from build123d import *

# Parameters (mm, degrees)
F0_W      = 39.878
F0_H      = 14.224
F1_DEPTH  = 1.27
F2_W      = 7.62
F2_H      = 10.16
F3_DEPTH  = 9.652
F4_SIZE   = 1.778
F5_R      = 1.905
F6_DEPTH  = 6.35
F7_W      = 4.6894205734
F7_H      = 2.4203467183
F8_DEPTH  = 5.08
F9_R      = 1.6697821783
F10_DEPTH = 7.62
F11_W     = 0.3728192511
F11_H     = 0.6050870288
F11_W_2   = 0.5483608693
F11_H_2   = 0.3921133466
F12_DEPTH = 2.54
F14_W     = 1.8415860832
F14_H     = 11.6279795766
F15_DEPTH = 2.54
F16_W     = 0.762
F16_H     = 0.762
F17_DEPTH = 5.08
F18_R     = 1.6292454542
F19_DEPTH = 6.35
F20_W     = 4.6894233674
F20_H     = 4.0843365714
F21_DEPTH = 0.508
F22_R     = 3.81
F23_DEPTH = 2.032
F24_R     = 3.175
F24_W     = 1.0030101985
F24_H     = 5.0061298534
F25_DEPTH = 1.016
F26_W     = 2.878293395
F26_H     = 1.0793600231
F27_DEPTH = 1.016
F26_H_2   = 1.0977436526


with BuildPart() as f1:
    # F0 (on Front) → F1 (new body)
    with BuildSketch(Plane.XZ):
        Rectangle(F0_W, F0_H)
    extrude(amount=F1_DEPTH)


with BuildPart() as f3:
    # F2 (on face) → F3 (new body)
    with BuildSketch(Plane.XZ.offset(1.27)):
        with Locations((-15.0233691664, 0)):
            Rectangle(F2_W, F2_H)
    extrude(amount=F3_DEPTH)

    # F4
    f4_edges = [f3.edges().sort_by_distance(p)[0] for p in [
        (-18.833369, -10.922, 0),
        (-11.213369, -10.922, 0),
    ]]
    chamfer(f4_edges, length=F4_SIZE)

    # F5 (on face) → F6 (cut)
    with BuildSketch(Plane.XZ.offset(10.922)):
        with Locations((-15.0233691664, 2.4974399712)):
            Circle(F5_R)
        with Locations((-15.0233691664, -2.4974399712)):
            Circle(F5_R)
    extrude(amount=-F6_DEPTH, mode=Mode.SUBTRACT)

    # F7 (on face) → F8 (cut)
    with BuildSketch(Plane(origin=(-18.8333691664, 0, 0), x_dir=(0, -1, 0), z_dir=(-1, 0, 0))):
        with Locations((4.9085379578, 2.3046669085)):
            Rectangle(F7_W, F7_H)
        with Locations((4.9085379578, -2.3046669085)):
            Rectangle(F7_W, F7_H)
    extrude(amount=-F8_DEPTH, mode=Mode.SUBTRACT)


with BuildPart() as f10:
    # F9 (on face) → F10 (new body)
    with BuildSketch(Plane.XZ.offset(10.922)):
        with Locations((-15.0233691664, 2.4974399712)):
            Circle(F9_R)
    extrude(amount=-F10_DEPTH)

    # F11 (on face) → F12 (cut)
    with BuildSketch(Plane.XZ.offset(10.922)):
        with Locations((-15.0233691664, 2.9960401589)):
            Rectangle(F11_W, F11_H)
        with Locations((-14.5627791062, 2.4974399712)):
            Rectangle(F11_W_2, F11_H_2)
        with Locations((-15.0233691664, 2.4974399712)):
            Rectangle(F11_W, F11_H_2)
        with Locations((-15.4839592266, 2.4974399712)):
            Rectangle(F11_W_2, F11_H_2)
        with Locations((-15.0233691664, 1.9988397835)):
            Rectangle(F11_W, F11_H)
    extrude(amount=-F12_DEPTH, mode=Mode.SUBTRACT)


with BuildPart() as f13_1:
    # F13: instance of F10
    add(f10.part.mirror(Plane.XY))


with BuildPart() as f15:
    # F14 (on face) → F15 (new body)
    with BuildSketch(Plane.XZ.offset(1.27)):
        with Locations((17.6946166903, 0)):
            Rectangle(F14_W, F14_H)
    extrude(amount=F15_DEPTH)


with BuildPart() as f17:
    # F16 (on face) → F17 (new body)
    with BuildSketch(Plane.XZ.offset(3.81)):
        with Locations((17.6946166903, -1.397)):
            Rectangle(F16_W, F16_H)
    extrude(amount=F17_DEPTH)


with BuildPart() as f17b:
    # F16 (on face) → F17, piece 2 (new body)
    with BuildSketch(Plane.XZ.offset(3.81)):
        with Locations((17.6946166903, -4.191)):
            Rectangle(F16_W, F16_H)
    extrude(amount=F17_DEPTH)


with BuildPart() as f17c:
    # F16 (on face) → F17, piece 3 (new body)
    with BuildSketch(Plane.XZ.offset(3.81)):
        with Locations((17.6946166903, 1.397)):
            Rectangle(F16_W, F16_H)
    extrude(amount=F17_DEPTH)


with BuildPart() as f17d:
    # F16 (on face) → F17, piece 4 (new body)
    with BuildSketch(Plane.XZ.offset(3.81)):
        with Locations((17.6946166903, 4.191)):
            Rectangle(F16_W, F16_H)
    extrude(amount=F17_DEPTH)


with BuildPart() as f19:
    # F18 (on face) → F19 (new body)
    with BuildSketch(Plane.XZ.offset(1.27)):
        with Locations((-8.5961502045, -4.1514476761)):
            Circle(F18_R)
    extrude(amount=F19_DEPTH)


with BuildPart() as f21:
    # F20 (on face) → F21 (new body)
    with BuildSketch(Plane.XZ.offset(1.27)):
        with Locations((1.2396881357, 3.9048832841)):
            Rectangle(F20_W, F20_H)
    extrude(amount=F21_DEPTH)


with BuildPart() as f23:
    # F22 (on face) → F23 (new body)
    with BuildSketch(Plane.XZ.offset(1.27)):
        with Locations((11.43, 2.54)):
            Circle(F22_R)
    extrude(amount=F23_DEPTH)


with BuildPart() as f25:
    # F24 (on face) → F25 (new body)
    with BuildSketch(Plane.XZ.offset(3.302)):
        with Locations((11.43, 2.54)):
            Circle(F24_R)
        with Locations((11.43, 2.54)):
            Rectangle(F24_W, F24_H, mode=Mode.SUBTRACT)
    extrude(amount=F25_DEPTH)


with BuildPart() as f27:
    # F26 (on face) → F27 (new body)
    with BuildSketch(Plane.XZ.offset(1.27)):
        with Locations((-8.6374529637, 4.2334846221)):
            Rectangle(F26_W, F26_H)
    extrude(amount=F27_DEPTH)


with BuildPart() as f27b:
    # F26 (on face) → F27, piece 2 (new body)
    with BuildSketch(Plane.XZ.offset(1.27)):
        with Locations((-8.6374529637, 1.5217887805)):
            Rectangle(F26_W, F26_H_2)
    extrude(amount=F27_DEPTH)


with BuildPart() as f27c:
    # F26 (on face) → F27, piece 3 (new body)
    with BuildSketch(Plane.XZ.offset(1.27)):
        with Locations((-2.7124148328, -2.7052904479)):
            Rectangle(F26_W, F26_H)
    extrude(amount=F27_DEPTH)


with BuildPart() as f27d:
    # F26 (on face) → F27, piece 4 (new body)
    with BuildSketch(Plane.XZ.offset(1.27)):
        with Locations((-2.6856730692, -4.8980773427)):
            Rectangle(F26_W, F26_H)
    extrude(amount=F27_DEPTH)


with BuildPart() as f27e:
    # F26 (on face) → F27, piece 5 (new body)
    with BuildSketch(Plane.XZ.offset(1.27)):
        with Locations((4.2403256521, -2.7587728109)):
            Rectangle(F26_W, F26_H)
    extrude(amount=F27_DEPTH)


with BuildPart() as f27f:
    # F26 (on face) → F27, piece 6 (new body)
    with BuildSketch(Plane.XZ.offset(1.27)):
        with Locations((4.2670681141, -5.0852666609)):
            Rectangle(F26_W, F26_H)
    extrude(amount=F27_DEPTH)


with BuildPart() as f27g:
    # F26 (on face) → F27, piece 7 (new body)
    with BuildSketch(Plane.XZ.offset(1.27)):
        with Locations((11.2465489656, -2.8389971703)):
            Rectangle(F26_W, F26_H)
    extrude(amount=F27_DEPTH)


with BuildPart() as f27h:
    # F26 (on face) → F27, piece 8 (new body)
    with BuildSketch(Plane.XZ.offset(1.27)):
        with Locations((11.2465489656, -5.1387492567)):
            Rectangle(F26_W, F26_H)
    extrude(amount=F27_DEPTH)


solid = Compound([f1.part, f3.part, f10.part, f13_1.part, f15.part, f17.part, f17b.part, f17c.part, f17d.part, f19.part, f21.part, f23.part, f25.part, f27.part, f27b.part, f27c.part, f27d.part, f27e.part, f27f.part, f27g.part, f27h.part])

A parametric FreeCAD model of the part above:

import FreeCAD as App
import Part
import Sketcher
Q = App.Units.Quantity


def edges_at(feature, points):
    """Names of the edges that pass closest to the given points."""
    edges = feature.Shape.Edges
    near = lambda p: min(range(len(edges)), key=lambda i: edges[i].distToShape(Part.Vertex(*p))[0])
    return sorted({f"Edge{near(p) + 1}" for p in points})

doc = App.newDocument("Part")
body = doc.addObject("PartDesign::Body", "Body")

# Sketch on XZ plane
sketch1 = body.newObject("Sketcher::SketchObject", "Sketch")
sketch1.AttachmentSupport = (doc.getObject("XZ_Plane"), [""])
sketch1.MapMode = "FlatFace"
sketch1.addGeometry(Part.LineSegment(App.Vector(-20, 7, 0), App.Vector(-20, -7, 0)), False)
sketch1.addGeometry(Part.LineSegment(App.Vector(-20, -7, 0), App.Vector(20, -7, 0)), False)
sketch1.addGeometry(Part.LineSegment(App.Vector(20, -7, 0), App.Vector(20, 7, 0)), False)
sketch1.addGeometry(Part.LineSegment(App.Vector(20, 7, 0), App.Vector(-20, 7, 0)), False)
sketch1.addConstraint(Sketcher.Constraint("Coincident", 0, 2, 1, 1))
sketch1.addConstraint(Sketcher.Constraint("Coincident", 1, 2, 2, 1))
sketch1.addConstraint(Sketcher.Constraint("Coincident", 2, 2, 3, 1))
sketch1.addConstraint(Sketcher.Constraint("Coincident", 3, 2, 0, 1))
sketch1.addConstraint(Sketcher.Constraint("Vertical", 0))
sketch1.addConstraint(Sketcher.Constraint("Horizontal", 1))
sketch1.addConstraint(Sketcher.Constraint("Vertical", 2))
sketch1.addConstraint(Sketcher.Constraint("Horizontal", 3))
sketch1.addConstraint(Sketcher.Constraint("Symmetric", 0, 2, 2, 2, -1, 1))
sketch1.addConstraint(Sketcher.Constraint("DistanceX", 1, 1, 1, 2, Q("1.57 in")))
sketch1.addConstraint(Sketcher.Constraint("DistanceY", 0, 2, 0, 1, Q("0.56 in")))
pad1 = body.newObject("PartDesign::Pad", "Pad")
pad1.Profile = sketch1
pad1.Length = Q("0.05 in")
body2 = doc.addObject("PartDesign::Body", "Body001")

# Sketch on XZ plane
sketch2 = body2.newObject("Sketcher::SketchObject", "Sketch001")
sketch2.AttachmentSupport = (doc.getObject("XZ_Plane001"), [""])
sketch2.MapMode = "FlatFace"
sketch2.AttachmentOffset = App.Placement(App.Vector(0, 0, 0.05 * 25.4), App.Rotation())
sketch2.addGeometry(Part.LineSegment(App.Vector(-19, 5, 0), App.Vector(-19, -5, 0)), False)
sketch2.addGeometry(Part.LineSegment(App.Vector(-19, -5, 0), App.Vector(-11, -5, 0)), False)
sketch2.addGeometry(Part.LineSegment(App.Vector(-11, -5, 0), App.Vector(-11, 5, 0)), False)
sketch2.addGeometry(Part.LineSegment(App.Vector(-11, 5, 0), App.Vector(-19, 5, 0)), False)
sketch2.addConstraint(Sketcher.Constraint("Coincident", 0, 2, 1, 1))
sketch2.addConstraint(Sketcher.Constraint("Coincident", 1, 2, 2, 1))
sketch2.addConstraint(Sketcher.Constraint("Coincident", 2, 2, 3, 1))
sketch2.addConstraint(Sketcher.Constraint("Coincident", 3, 2, 0, 1))
sketch2.addConstraint(Sketcher.Constraint("Vertical", 0))
sketch2.addConstraint(Sketcher.Constraint("Horizontal", 1))
sketch2.addConstraint(Sketcher.Constraint("Vertical", 2))
sketch2.addConstraint(Sketcher.Constraint("Horizontal", 3))
sketch2.addConstraint(Sketcher.Constraint("DistanceX", 1, 1, 1, 2, Q("0.3 in")))
sketch2.addConstraint(Sketcher.Constraint("DistanceY", 0, 2, 0, 1, Q("0.4 in")))
sketch2.addConstraint(Sketcher.Constraint("DistanceY", 0, 2, -1, 1, Q("0.2 in")))
sketch2.addConstraint(Sketcher.Constraint("DistanceX", 0, 2, -1, 1, 18.833369))
pad2 = body2.newObject("PartDesign::Pad", "Pad001")
pad2.Profile = sketch2
pad2.Length = Q("0.38 in")
doc.recompute()

chamfer = body2.newObject("PartDesign::Chamfer", "Chamfer")
chamfer.Base = (pad2, edges_at(pad2, [(-18.833, -10.922, 0), (-11.213, -10.922, 0)]))
chamfer.Size = Q("0.07 in")

# Sketch on XZ plane
sketch3 = body2.newObject("Sketcher::SketchObject", "Sketch002")
sketch3.AttachmentSupport = (doc.getObject("XZ_Plane001"), [""])
sketch3.MapMode = "FlatFace"
sketch3.AttachmentOffset = App.Placement(App.Vector(0, 0, 0.43 * 25.4), App.Rotation())
sketch3.addGeometry(Part.Circle(App.Vector(-15, 2.5, 0), App.Vector(0, 0, 1), 1.9), False)
sketch3.addGeometry(Part.Circle(App.Vector(-15, -2.5, 0), App.Vector(0, 0, 1), 1.9), False)
sketch3.addConstraint(Sketcher.Constraint("Equal", 0, 1))
sketch3.addConstraint(Sketcher.Constraint("Symmetric", 0, 3, 1, 3, -1))
sketch3.addConstraint(Sketcher.Constraint("Diameter", 0, Q("0.15 in")))
sketch3.addConstraint(Sketcher.Constraint("DistanceX", 0, 3, -1, 1, 15.023369))
sketch3.addConstraint(Sketcher.Constraint("DistanceY", -1, 1, 0, 3, 2.49744))
pocket1 = body2.newObject("PartDesign::Pocket", "Pocket")
pocket1.Profile = sketch3
pocket1.Length = Q("0.25 in")

# Sketch on YZ plane
sketch4 = body2.newObject("Sketcher::SketchObject", "Sketch003")
sketch4.AttachmentSupport = (doc.getObject("YZ_Plane001"), [""])
sketch4.MapMode = "FlatFace"
sketch4.AttachmentOffset = App.Placement(App.Vector(0, 0, -18.833369), App.Rotation())
sketch4.addGeometry(Part.LineSegment(App.Vector(-2.6, 3.5, 0), App.Vector(-2.6, 1.1, 0)), False)
sketch4.addGeometry(Part.LineSegment(App.Vector(-2.6, 1.1, 0), App.Vector(-7.3, 1.1, 0)), False)
sketch4.addGeometry(Part.LineSegment(App.Vector(-7.3, 1.1, 0), App.Vector(-7.3, 3.5, 0)), False)
sketch4.addGeometry(Part.LineSegment(App.Vector(-7.3, 3.5, 0), App.Vector(-2.6, 3.5, 0)), False)
sketch4.addGeometry(Part.LineSegment(App.Vector(-2.6, -1.1, 0), App.Vector(-2.6, -3.5, 0)), False)
sketch4.addGeometry(Part.LineSegment(App.Vector(-2.6, -3.5, 0), App.Vector(-7.3, -3.5, 0)), False)
sketch4.addGeometry(Part.LineSegment(App.Vector(-7.3, -3.5, 0), App.Vector(-7.3, -1.1, 0)), False)
sketch4.addGeometry(Part.LineSegment(App.Vector(-7.3, -1.1, 0), App.Vector(-2.6, -1.1, 0)), False)
sketch4.addConstraint(Sketcher.Constraint("Coincident", 0, 2, 1, 1))
sketch4.addConstraint(Sketcher.Constraint("Coincident", 1, 2, 2, 1))
sketch4.addConstraint(Sketcher.Constraint("Coincident", 2, 2, 3, 1))
sketch4.addConstraint(Sketcher.Constraint("Coincident", 3, 2, 0, 1))
sketch4.addConstraint(Sketcher.Constraint("Coincident", 4, 2, 5, 1))
sketch4.addConstraint(Sketcher.Constraint("Coincident", 5, 2, 6, 1))
sketch4.addConstraint(Sketcher.Constraint("Coincident", 6, 2, 7, 1))
sketch4.addConstraint(Sketcher.Constraint("Coincident", 7, 2, 4, 1))
sketch4.addConstraint(Sketcher.Constraint("Vertical", 0))
sketch4.addConstraint(Sketcher.Constraint("Horizontal", 1))
sketch4.addConstraint(Sketcher.Constraint("Vertical", 2))
sketch4.addConstraint(Sketcher.Constraint("Horizontal", 3))
sketch4.addConstraint(Sketcher.Constraint("Vertical", 4))
sketch4.addConstraint(Sketcher.Constraint("Horizontal", 5))
sketch4.addConstraint(Sketcher.Constraint("Vertical", 6))
sketch4.addConstraint(Sketcher.Constraint("Horizontal", 7))
sketch4.addConstraint(Sketcher.Constraint("Symmetric", 3, 2, 4, 2, -1))
sketch4.addConstraint(Sketcher.Constraint("Symmetric", 1, 2, 6, 2, -1))
sketch4.addConstraint(Sketcher.Constraint("DistanceX", 1, 2, 1, 1, 4.689421))
sketch4.addConstraint(Sketcher.Constraint("DistanceY", 0, 2, 0, 1, 2.420347))
sketch4.addConstraint(Sketcher.Constraint("DistanceX", 1, 2, -1, 1, 7.253248))
sketch4.addConstraint(Sketcher.Constraint("DistanceY", -1, 1, 2, 2, 3.51484))
pocket2 = body2.newObject("PartDesign::Pocket", "Pocket001")
pocket2.Profile = sketch4
pocket2.Length = Q("0.2 in")
pocket2.Reversed = True
body3 = doc.addObject("PartDesign::Body", "Body002")

# Sketch on XZ plane
sketch5 = body3.newObject("Sketcher::SketchObject", "Sketch004")
sketch5.AttachmentSupport = (doc.getObject("XZ_Plane002"), [""])
sketch5.MapMode = "FlatFace"
sketch5.AttachmentOffset = App.Placement(App.Vector(0, 0, 0.43 * 25.4), App.Rotation())
sketch5.addGeometry(Part.Circle(App.Vector(-15, 2.5, 0), App.Vector(0, 0, 1), 1.7), False)
sketch5.addConstraint(Sketcher.Constraint("Diameter", 0, 3.339564))
sketch5.addConstraint(Sketcher.Constraint("DistanceX", 0, 3, -1, 1, 15.023369))
sketch5.addConstraint(Sketcher.Constraint("DistanceY", -1, 1, 0, 3, 2.49744))
pad3 = body3.newObject("PartDesign::Pad", "Pad002")
pad3.Profile = sketch5
pad3.Length = Q("0.3 in")
pad3.Reversed = True

# Sketch on XZ plane
sketch6 = body3.newObject("Sketcher::SketchObject", "Sketch005")
sketch6.AttachmentSupport = (doc.getObject("XZ_Plane002"), [""])
sketch6.MapMode = "FlatFace"
sketch6.AttachmentOffset = App.Placement(App.Vector(0, 0, 0.43 * 25.4), App.Rotation())
sketch6.addGeometry(Part.LineSegment(App.Vector(-15.21, 3.3, 0), App.Vector(-15.21, 2.69, 0)), False)
sketch6.addGeometry(Part.LineSegment(App.Vector(-15.21, 2.69, 0), App.Vector(-15.76, 2.69, 0)), False)
sketch6.addGeometry(Part.LineSegment(App.Vector(-15.76, 2.69, 0), App.Vector(-15.76, 2.3, 0)), False)
sketch6.addGeometry(Part.LineSegment(App.Vector(-15.76, 2.3, 0), App.Vector(-15.21, 2.3, 0)), False)
sketch6.addGeometry(Part.LineSegment(App.Vector(-15.21, 2.3, 0), App.Vector(-15.21, 1.7, 0)), False)
sketch6.addGeometry(Part.LineSegment(App.Vector(-15.21, 1.7, 0), App.Vector(-14.84, 1.7, 0)), False)
sketch6.addGeometry(Part.LineSegment(App.Vector(-14.84, 1.7, 0), App.Vector(-14.84, 2.3, 0)), False)
sketch6.addGeometry(Part.LineSegment(App.Vector(-14.84, 2.3, 0), App.Vector(-14.29, 2.3, 0)), False)
sketch6.addGeometry(Part.LineSegment(App.Vector(-14.29, 2.3, 0), App.Vector(-14.29, 2.69, 0)), False)
sketch6.addGeometry(Part.LineSegment(App.Vector(-14.29, 2.69, 0), App.Vector(-14.84, 2.69, 0)), False)
sketch6.addGeometry(Part.LineSegment(App.Vector(-14.84, 2.69, 0), App.Vector(-14.84, 3.3, 0)), False)
sketch6.addGeometry(Part.LineSegment(App.Vector(-14.84, 3.3, 0), App.Vector(-15.21, 3.3, 0)), False)
sketch6.addConstraint(Sketcher.Constraint("Coincident", 0, 2, 1, 1))
sketch6.addConstraint(Sketcher.Constraint("Coincident", 1, 2, 2, 1))
sketch6.addConstraint(Sketcher.Constraint("Coincident", 2, 2, 3, 1))
sketch6.addConstraint(Sketcher.Constraint("Coincident", 3, 2, 4, 1))
sketch6.addConstraint(Sketcher.Constraint("Coincident", 4, 2, 5, 1))
sketch6.addConstraint(Sketcher.Constraint("Coincident", 5, 2, 6, 1))
sketch6.addConstraint(Sketcher.Constraint("Coincident", 6, 2, 7, 1))
sketch6.addConstraint(Sketcher.Constraint("Coincident", 7, 2, 8, 1))
sketch6.addConstraint(Sketcher.Constraint("Coincident", 8, 2, 9, 1))
sketch6.addConstraint(Sketcher.Constraint("Coincident", 9, 2, 10, 1))
sketch6.addConstraint(Sketcher.Constraint("Coincident", 10, 2, 11, 1))
sketch6.addConstraint(Sketcher.Constraint("Coincident", 11, 2, 0, 1))
sketch6.addConstraint(Sketcher.Constraint("Vertical", 0))
sketch6.addConstraint(Sketcher.Constraint("Horizontal", 1))
sketch6.addConstraint(Sketcher.Constraint("Vertical", 2))
sketch6.addConstraint(Sketcher.Constraint("Horizontal", 3))
sketch6.addConstraint(Sketcher.Constraint("Vertical", 4))
sketch6.addConstraint(Sketcher.Constraint("Horizontal", 5))
sketch6.addConstraint(Sketcher.Constraint("Vertical", 6))
sketch6.addConstraint(Sketcher.Constraint("Horizontal", 7))
sketch6.addConstraint(Sketcher.Constraint("Vertical", 8))
sketch6.addConstraint(Sketcher.Constraint("Horizontal", 9))
sketch6.addConstraint(Sketcher.Constraint("Vertical", 10))
sketch6.addConstraint(Sketcher.Constraint("Horizontal", 11))
sketch6.addConstraint(Sketcher.Constraint("Horizontal", 3, 2, 6, 2))
sketch6.addConstraint(Sketcher.Constraint("Horizontal", 1, 2, 8, 2))
sketch6.addConstraint(Sketcher.Constraint("Vertical", 0, 2, 3, 2))
sketch6.addConstraint(Sketcher.Constraint("Vertical", 6, 2, 9, 2))
sketch6.addConstraint(Sketcher.Constraint("Equal", 3, 7))
sketch6.addConstraint(Sketcher.Constraint("Equal", 0, 4))
sketch6.addConstraint(Sketcher.Constraint("DistanceX", 1, 2, 1, 1, 0.548361))
sketch6.addConstraint(Sketcher.Constraint("DistanceX", 5, 1, 5, 2, 0.372819))
sketch6.addConstraint(Sketcher.Constraint("DistanceX", 7, 2, -1, 1, 14.288599))
sketch6.addConstraint(Sketcher.Constraint("DistanceY", 4, 2, 0, 2, 0.9972))
sketch6.addConstraint(Sketcher.Constraint("DistanceY", 0, 2, 0, 1, 0.605087))
sketch6.addConstraint(Sketcher.Constraint("DistanceY", -1, 1, 0, 2, 2.693497))
pocket3 = body3.newObject("PartDesign::Pocket", "Pocket002")
pocket3.Profile = sketch6
pocket3.Length = Q("0.1 in")
body4 = doc.addObject("PartDesign::Body", "Body003")
doc.recompute()

mirroring = doc.addObject("Part::Mirroring", "Mirroring")
mirroring.Source = body3
mirroring.Base = App.Vector(0, 0, 0)
mirroring.Normal = App.Vector(0, 0, 1)
body4.BaseFeature = mirroring
doc.recompute()
body5 = doc.addObject("PartDesign::Body", "Body004")

# Sketch on XZ plane
sketch7 = body5.newObject("Sketcher::SketchObject", "Sketch006")
sketch7.AttachmentSupport = (doc.getObject("XZ_Plane004"), [""])
sketch7.MapMode = "FlatFace"
sketch7.AttachmentOffset = App.Placement(App.Vector(0, 0, 0.05 * 25.4), App.Rotation())
sketch7.addGeometry(Part.LineSegment(App.Vector(16.8, 5.8, 0), App.Vector(16.8, -5.8, 0)), False)
sketch7.addGeometry(Part.LineSegment(App.Vector(16.8, -5.8, 0), App.Vector(18.6, -5.8, 0)), False)
sketch7.addGeometry(Part.LineSegment(App.Vector(18.6, -5.8, 0), App.Vector(18.6, 5.8, 0)), False)
sketch7.addGeometry(Part.LineSegment(App.Vector(18.6, 5.8, 0), App.Vector(16.8, 5.8, 0)), False)
sketch7.addConstraint(Sketcher.Constraint("Coincident", 0, 2, 1, 1))
sketch7.addConstraint(Sketcher.Constraint("Coincident", 1, 2, 2, 1))
sketch7.addConstraint(Sketcher.Constraint("Coincident", 2, 2, 3, 1))
sketch7.addConstraint(Sketcher.Constraint("Coincident", 3, 2, 0, 1))
sketch7.addConstraint(Sketcher.Constraint("Vertical", 0))
sketch7.addConstraint(Sketcher.Constraint("Horizontal", 1))
sketch7.addConstraint(Sketcher.Constraint("Vertical", 2))
sketch7.addConstraint(Sketcher.Constraint("Horizontal", 3))
sketch7.addConstraint(Sketcher.Constraint("DistanceY", 0, 2, 0, 1, 11.62798))
sketch7.addConstraint(Sketcher.Constraint("DistanceX", 1, 1, 1, 2, 1.841586))
sketch7.addConstraint(Sketcher.Constraint("DistanceY", 0, 2, -1, 1, 5.81399))
sketch7.addConstraint(Sketcher.Constraint("DistanceX", -1, 1, 1, 2, 18.61541))
pad4 = body5.newObject("PartDesign::Pad", "Pad003")
pad4.Profile = sketch7
pad4.Length = Q("0.1 in")
body6 = doc.addObject("PartDesign::Body", "Body005")

# Sketch on XZ plane
sketch8 = body6.newObject("Sketcher::SketchObject", "Sketch007")
sketch8.AttachmentSupport = (doc.getObject("XZ_Plane005"), [""])
sketch8.MapMode = "FlatFace"
sketch8.AttachmentOffset = App.Placement(App.Vector(0, 0, 0.15 * 25.4), App.Rotation())
sketch8.addGeometry(Part.LineSegment(App.Vector(17.3, -1, 0), App.Vector(17.3, -1.8, 0)), False)
sketch8.addGeometry(Part.LineSegment(App.Vector(17.3, -1.8, 0), App.Vector(18.1, -1.8, 0)), False)
sketch8.addGeometry(Part.LineSegment(App.Vector(18.1, -1.8, 0), App.Vector(18.1, -1, 0)), False)
sketch8.addGeometry(Part.LineSegment(App.Vector(18.1, -1, 0), App.Vector(17.3, -1, 0)), False)
sketch8.addConstraint(Sketcher.Constraint("Coincident", 0, 2, 1, 1))
sketch8.addConstraint(Sketcher.Constraint("Coincident", 1, 2, 2, 1))
sketch8.addConstraint(Sketcher.Constraint("Coincident", 2, 2, 3, 1))
sketch8.addConstraint(Sketcher.Constraint("Coincident", 3, 2, 0, 1))
sketch8.addConstraint(Sketcher.Constraint("Vertical", 0))
sketch8.addConstraint(Sketcher.Constraint("Horizontal", 1))
sketch8.addConstraint(Sketcher.Constraint("Vertical", 2))
sketch8.addConstraint(Sketcher.Constraint("Horizontal", 3))
sketch8.addConstraint(Sketcher.Constraint("Equal", 3, 0))
sketch8.addConstraint(Sketcher.Constraint("DistanceX", 1, 1, 1, 2, Q("0.03 in")))
sketch8.addConstraint(Sketcher.Constraint("DistanceY", 0, 2, -1, 1, Q("0.07 in")))
sketch8.addConstraint(Sketcher.Constraint("DistanceX", -1, 1, 0, 2, 17.313617))
pad5 = body6.newObject("PartDesign::Pad", "Pad004")
pad5.Profile = sketch8
pad5.Length = Q("0.2 in")
body7 = doc.addObject("PartDesign::Body", "Body006")

# Sketch on XZ plane
sketch9 = body7.newObject("Sketcher::SketchObject", "Sketch008")
sketch9.AttachmentSupport = (doc.getObject("XZ_Plane006"), [""])
sketch9.MapMode = "FlatFace"
sketch9.AttachmentOffset = App.Placement(App.Vector(0, 0, 0.15 * 25.4), App.Rotation())
sketch9.addGeometry(Part.LineSegment(App.Vector(17.3, -3.8, 0), App.Vector(17.3, -4.6, 0)), False)
sketch9.addGeometry(Part.LineSegment(App.Vector(17.3, -4.6, 0), App.Vector(18.1, -4.6, 0)), False)
sketch9.addGeometry(Part.LineSegment(App.Vector(18.1, -4.6, 0), App.Vector(18.1, -3.8, 0)), False)
sketch9.addGeometry(Part.LineSegment(App.Vector(18.1, -3.8, 0), App.Vector(17.3, -3.8, 0)), False)
sketch9.addConstraint(Sketcher.Constraint("Coincident", 0, 2, 1, 1))
sketch9.addConstraint(Sketcher.Constraint("Coincident", 1, 2, 2, 1))
sketch9.addConstraint(Sketcher.Constraint("Coincident", 2, 2, 3, 1))
sketch9.addConstraint(Sketcher.Constraint("Coincident", 3, 2, 0, 1))
sketch9.addConstraint(Sketcher.Constraint("Vertical", 0))
sketch9.addConstraint(Sketcher.Constraint("Horizontal", 1))
sketch9.addConstraint(Sketcher.Constraint("Vertical", 2))
sketch9.addConstraint(Sketcher.Constraint("Horizontal", 3))
sketch9.addConstraint(Sketcher.Constraint("Equal", 3, 0))
sketch9.addConstraint(Sketcher.Constraint("DistanceX", 1, 1, 1, 2, Q("0.03 in")))
sketch9.addConstraint(Sketcher.Constraint("DistanceY", 0, 2, -1, 1, Q("0.18 in")))
sketch9.addConstraint(Sketcher.Constraint("DistanceX", -1, 1, 0, 2, 17.313617))
pad6 = body7.newObject("PartDesign::Pad", "Pad005")
pad6.Profile = sketch9
pad6.Length = Q("0.2 in")
body8 = doc.addObject("PartDesign::Body", "Body007")

# Sketch on XZ plane
sketch10 = body8.newObject("Sketcher::SketchObject", "Sketch009")
sketch10.AttachmentSupport = (doc.getObject("XZ_Plane007"), [""])
sketch10.MapMode = "FlatFace"
sketch10.AttachmentOffset = App.Placement(App.Vector(0, 0, 0.15 * 25.4), App.Rotation())
sketch10.addGeometry(Part.LineSegment(App.Vector(17.3, 1.8, 0), App.Vector(17.3, 1, 0)), False)
sketch10.addGeometry(Part.LineSegment(App.Vector(17.3, 1, 0), App.Vector(18.1, 1, 0)), False)
sketch10.addGeometry(Part.LineSegment(App.Vector(18.1, 1, 0), App.Vector(18.1, 1.8, 0)), False)
sketch10.addGeometry(Part.LineSegment(App.Vector(18.1, 1.8, 0), App.Vector(17.3, 1.8, 0)), False)
sketch10.addConstraint(Sketcher.Constraint("Coincident", 0, 2, 1, 1))
sketch10.addConstraint(Sketcher.Constraint("Coincident", 1, 2, 2, 1))
sketch10.addConstraint(Sketcher.Constraint("Coincident", 2, 2, 3, 1))
sketch10.addConstraint(Sketcher.Constraint("Coincident", 3, 2, 0, 1))
sketch10.addConstraint(Sketcher.Constraint("Vertical", 0))
sketch10.addConstraint(Sketcher.Constraint("Horizontal", 1))
sketch10.addConstraint(Sketcher.Constraint("Vertical", 2))
sketch10.addConstraint(Sketcher.Constraint("Horizontal", 3))
sketch10.addConstraint(Sketcher.Constraint("Equal", 3, 0))
sketch10.addConstraint(Sketcher.Constraint("DistanceX", 1, 1, 1, 2, Q("0.03 in")))
sketch10.addConstraint(Sketcher.Constraint("DistanceY", -1, 1, 0, 2, Q("0.04 in")))
sketch10.addConstraint(Sketcher.Constraint("DistanceX", -1, 1, 0, 2, 17.313617))
pad7 = body8.newObject("PartDesign::Pad", "Pad006")
pad7.Profile = sketch10
pad7.Length = Q("0.2 in")
body9 = doc.addObject("PartDesign::Body", "Body008")

# Sketch on XZ plane
sketch11 = body9.newObject("Sketcher::SketchObject", "Sketch010")
sketch11.AttachmentSupport = (doc.getObject("XZ_Plane008"), [""])
sketch11.MapMode = "FlatFace"
sketch11.AttachmentOffset = App.Placement(App.Vector(0, 0, 0.15 * 25.4), App.Rotation())
sketch11.addGeometry(Part.LineSegment(App.Vector(17.3, 4.6, 0), App.Vector(17.3, 3.8, 0)), False)
sketch11.addGeometry(Part.LineSegment(App.Vector(17.3, 3.8, 0), App.Vector(18.1, 3.8, 0)), False)
sketch11.addGeometry(Part.LineSegment(App.Vector(18.1, 3.8, 0), App.Vector(18.1, 4.6, 0)), False)
sketch11.addGeometry(Part.LineSegment(App.Vector(18.1, 4.6, 0), App.Vector(17.3, 4.6, 0)), False)
sketch11.addConstraint(Sketcher.Constraint("Coincident", 0, 2, 1, 1))
sketch11.addConstraint(Sketcher.Constraint("Coincident", 1, 2, 2, 1))
sketch11.addConstraint(Sketcher.Constraint("Coincident", 2, 2, 3, 1))
sketch11.addConstraint(Sketcher.Constraint("Coincident", 3, 2, 0, 1))
sketch11.addConstraint(Sketcher.Constraint("Vertical", 0))
sketch11.addConstraint(Sketcher.Constraint("Horizontal", 1))
sketch11.addConstraint(Sketcher.Constraint("Vertical", 2))
sketch11.addConstraint(Sketcher.Constraint("Horizontal", 3))
sketch11.addConstraint(Sketcher.Constraint("Equal", 3, 0))
sketch11.addConstraint(Sketcher.Constraint("DistanceX", 1, 1, 1, 2, Q("0.03 in")))
sketch11.addConstraint(Sketcher.Constraint("DistanceY", -1, 1, 0, 2, Q("0.15 in")))
sketch11.addConstraint(Sketcher.Constraint("DistanceX", -1, 1, 0, 2, 17.313617))
pad8 = body9.newObject("PartDesign::Pad", "Pad007")
pad8.Profile = sketch11
pad8.Length = Q("0.2 in")
body10 = doc.addObject("PartDesign::Body", "Body009")

# Sketch on XZ plane
sketch12 = body10.newObject("Sketcher::SketchObject", "Sketch011")
sketch12.AttachmentSupport = (doc.getObject("XZ_Plane009"), [""])
sketch12.MapMode = "FlatFace"
sketch12.AttachmentOffset = App.Placement(App.Vector(0, 0, 0.05 * 25.4), App.Rotation())
sketch12.addGeometry(Part.Circle(App.Vector(-8.6, -4.2, 0), App.Vector(0, 0, 1), 1.6), False)
sketch12.addConstraint(Sketcher.Constraint("Diameter", 0, 3.258491))
sketch12.addConstraint(Sketcher.Constraint("DistanceX", 0, 3, -1, 1, 8.59615))
sketch12.addConstraint(Sketcher.Constraint("DistanceY", 0, 3, -1, 1, 4.151448))
pad9 = body10.newObject("PartDesign::Pad", "Pad008")
pad9.Profile = sketch12
pad9.Length = Q("0.25 in")
body11 = doc.addObject("PartDesign::Body", "Body010")

# Sketch on XZ plane
sketch13 = body11.newObject("Sketcher::SketchObject", "Sketch012")
sketch13.AttachmentSupport = (doc.getObject("XZ_Plane010"), [""])
sketch13.MapMode = "FlatFace"
sketch13.AttachmentOffset = App.Placement(App.Vector(0, 0, 0.05 * 25.4), App.Rotation())
sketch13.addGeometry(Part.LineSegment(App.Vector(-1.1, 5.9, 0), App.Vector(-1.1, 1.9, 0)), False)
sketch13.addGeometry(Part.LineSegment(App.Vector(-1.1, 1.9, 0), App.Vector(3.6, 1.9, 0)), False)
sketch13.addGeometry(Part.LineSegment(App.Vector(3.6, 1.9, 0), App.Vector(3.6, 5.9, 0)), False)
sketch13.addGeometry(Part.LineSegment(App.Vector(3.6, 5.9, 0), App.Vector(-1.1, 5.9, 0)), False)
sketch13.addConstraint(Sketcher.Constraint("Coincident", 0, 2, 1, 1))
sketch13.addConstraint(Sketcher.Constraint("Coincident", 1, 2, 2, 1))
sketch13.addConstraint(Sketcher.Constraint("Coincident", 2, 2, 3, 1))
sketch13.addConstraint(Sketcher.Constraint("Coincident", 3, 2, 0, 1))
sketch13.addConstraint(Sketcher.Constraint("Vertical", 0))
sketch13.addConstraint(Sketcher.Constraint("Horizontal", 1))
sketch13.addConstraint(Sketcher.Constraint("Vertical", 2))
sketch13.addConstraint(Sketcher.Constraint("Horizontal", 3))
sketch13.addConstraint(Sketcher.Constraint("DistanceX", -1, 1, 1, 2, 3.5844))
sketch13.addConstraint(Sketcher.Constraint("DistanceX", 1, 1, 1, 2, 4.689423))
sketch13.addConstraint(Sketcher.Constraint("DistanceY", 0, 2, 0, 1, 4.084337))
sketch13.addConstraint(Sketcher.Constraint("DistanceY", -1, 1, 2, 2, 5.947052))
pad10 = body11.newObject("PartDesign::Pad", "Pad009")
pad10.Profile = sketch13
pad10.Length = Q("0.02 in")
body12 = doc.addObject("PartDesign::Body", "Body011")

# Sketch on XZ plane
sketch14 = body12.newObject("Sketcher::SketchObject", "Sketch013")
sketch14.AttachmentSupport = (doc.getObject("XZ_Plane011"), [""])
sketch14.MapMode = "FlatFace"
sketch14.AttachmentOffset = App.Placement(App.Vector(0, 0, 0.05 * 25.4), App.Rotation())
sketch14.addGeometry(Part.Circle(App.Vector(11.4, 2.5, 0), App.Vector(0, 0, 1), 3.8), False)
sketch14.addConstraint(Sketcher.Constraint("Diameter", 0, Q("0.3 in")))
sketch14.addConstraint(Sketcher.Constraint("DistanceY", -1, 1, 0, 3, Q("0.1 in")))
sketch14.addConstraint(Sketcher.Constraint("DistanceX", -1, 1, 0, 3, Q("0.45 in")))
pad11 = body12.newObject("PartDesign::Pad", "Pad010")
pad11.Profile = sketch14
pad11.Length = Q("0.08 in")
body13 = doc.addObject("PartDesign::Body", "Body012")

# Sketch on XZ plane
sketch15 = body13.newObject("Sketcher::SketchObject", "Sketch014")
sketch15.AttachmentSupport = (doc.getObject("XZ_Plane012"), [""])
sketch15.MapMode = "FlatFace"
sketch15.AttachmentOffset = App.Placement(App.Vector(0, 0, 0.13 * 25.4), App.Rotation())
sketch15.addGeometry(Part.Circle(App.Vector(11.4, 2.5, 0), App.Vector(0, 0, 1), 3.2), False)
sketch15.addGeometry(Part.LineSegment(App.Vector(11.9, 0, 0), App.Vector(10.9, 0, 0)), False)
sketch15.addGeometry(Part.LineSegment(App.Vector(10.9, 0, 0), App.Vector(10.9, 5, 0)), False)
sketch15.addGeometry(Part.LineSegment(App.Vector(10.9, 5, 0), App.Vector(11.9, 5, 0)), False)
sketch15.addGeometry(Part.LineSegment(App.Vector(11.9, 5, 0), App.Vector(11.9, 0, 0)), False)
sketch15.addConstraint(Sketcher.Constraint("Coincident", 1, 2, 2, 1))
sketch15.addConstraint(Sketcher.Constraint("Coincident", 2, 2, 3, 1))
sketch15.addConstraint(Sketcher.Constraint("Coincident", 3, 2, 4, 1))
sketch15.addConstraint(Sketcher.Constraint("Coincident", 4, 2, 1, 1))
sketch15.addConstraint(Sketcher.Constraint("Horizontal", 1))
sketch15.addConstraint(Sketcher.Constraint("Vertical", 2))
sketch15.addConstraint(Sketcher.Constraint("Horizontal", 3))
sketch15.addConstraint(Sketcher.Constraint("Vertical", 4))
sketch15.addConstraint(Sketcher.Constraint("Diameter", 0, Q("0.25 in")))
sketch15.addConstraint(Sketcher.Constraint("DistanceY", -1, 1, 0, 3, Q("0.1 in")))
sketch15.addConstraint(Sketcher.Constraint("DistanceX", -1, 1, 0, 3, Q("0.45 in")))
sketch15.addConstraint(Sketcher.Constraint("DistanceX", 1, 2, 1, 1, 1.00301))
sketch15.addConstraint(Sketcher.Constraint("DistanceY", 2, 1, 2, 2, 5.00613))
sketch15.addConstraint(Sketcher.Constraint("DistanceX", -1, 1, 1, 2, 10.928495))
sketch15.addConstraint(Sketcher.Constraint("DistanceY", -1, 1, 1, 2, 0.036935))
pad12 = body13.newObject("PartDesign::Pad", "Pad011")
pad12.Profile = sketch15
pad12.Length = Q("0.04 in")
body14 = doc.addObject("PartDesign::Body", "Body013")

# Sketch on XZ plane
sketch16 = body14.newObject("Sketcher::SketchObject", "Sketch015")
sketch16.AttachmentSupport = (doc.getObject("XZ_Plane013"), [""])
sketch16.MapMode = "FlatFace"
sketch16.AttachmentOffset = App.Placement(App.Vector(0, 0, 0.05 * 25.4), App.Rotation())
sketch16.addGeometry(Part.LineSegment(App.Vector(-10.1, 4.8, 0), App.Vector(-10.1, 3.7, 0)), False)
sketch16.addGeometry(Part.LineSegment(App.Vector(-10.1, 3.7, 0), App.Vector(-7.2, 3.7, 0)), False)
sketch16.addGeometry(Part.LineSegment(App.Vector(-7.2, 3.7, 0), App.Vector(-7.2, 4.8, 0)), False)
sketch16.addGeometry(Part.LineSegment(App.Vector(-7.2, 4.8, 0), App.Vector(-10.1, 4.8, 0)), False)
sketch16.addConstraint(Sketcher.Constraint("Coincident", 0, 2, 1, 1))
sketch16.addConstraint(Sketcher.Constraint("Coincident", 1, 2, 2, 1))
sketch16.addConstraint(Sketcher.Constraint("Coincident", 2, 2, 3, 1))
sketch16.addConstraint(Sketcher.Constraint("Coincident", 3, 2, 0, 1))
sketch16.addConstraint(Sketcher.Constraint("Vertical", 0))
sketch16.addConstraint(Sketcher.Constraint("Horizontal", 1))
sketch16.addConstraint(Sketcher.Constraint("Vertical", 2))
sketch16.addConstraint(Sketcher.Constraint("Horizontal", 3))
sketch16.addConstraint(Sketcher.Constraint("DistanceY", 0, 2, 0, 1, 1.07936))
sketch16.addConstraint(Sketcher.Constraint("DistanceX", 0, 2, -1, 1, 10.0766))
sketch16.addConstraint(Sketcher.Constraint("DistanceX", 1, 1, 1, 2, 2.878293))
sketch16.addConstraint(Sketcher.Constraint("DistanceY", -1, 1, 0, 2, 3.693805))
pad13 = body14.newObject("PartDesign::Pad", "Pad012")
pad13.Profile = sketch16
pad13.Length = Q("0.04 in")
body15 = doc.addObject("PartDesign::Body", "Body014")

# Sketch on XZ plane
sketch17 = body15.newObject("Sketcher::SketchObject", "Sketch016")
sketch17.AttachmentSupport = (doc.getObject("XZ_Plane014"), [""])
sketch17.MapMode = "FlatFace"
sketch17.AttachmentOffset = App.Placement(App.Vector(0, 0, 0.05 * 25.4), App.Rotation())
sketch17.addGeometry(Part.LineSegment(App.Vector(-10.1, 2.1, 0), App.Vector(-10.1, 1, 0)), False)
sketch17.addGeometry(Part.LineSegment(App.Vector(-10.1, 1, 0), App.Vector(-7.2, 1, 0)), False)
sketch17.addGeometry(Part.LineSegment(App.Vector(-7.2, 1, 0), App.Vector(-7.2, 2.1, 0)), False)
sketch17.addGeometry(Part.LineSegment(App.Vector(-7.2, 2.1, 0), App.Vector(-10.1, 2.1, 0)), False)
sketch17.addConstraint(Sketcher.Constraint("Coincident", 0, 2, 1, 1))
sketch17.addConstraint(Sketcher.Constraint("Coincident", 1, 2, 2, 1))
sketch17.addConstraint(Sketcher.Constraint("Coincident", 2, 2, 3, 1))
sketch17.addConstraint(Sketcher.Constraint("Coincident", 3, 2, 0, 1))
sketch17.addConstraint(Sketcher.Constraint("Vertical", 0))
sketch17.addConstraint(Sketcher.Constraint("Horizontal", 1))
sketch17.addConstraint(Sketcher.Constraint("Vertical", 2))
sketch17.addConstraint(Sketcher.Constraint("Horizontal", 3))
sketch17.addConstraint(Sketcher.Constraint("DistanceX", 0, 2, -1, 1, 10.0766))
sketch17.addConstraint(Sketcher.Constraint("DistanceX", 1, 1, 1, 2, 2.878293))
sketch17.addConstraint(Sketcher.Constraint("DistanceY", 0, 2, 0, 1, 1.097744))
sketch17.addConstraint(Sketcher.Constraint("DistanceY", -1, 1, 2, 2, 2.070661))
pad14 = body15.newObject("PartDesign::Pad", "Pad013")
pad14.Profile = sketch17
pad14.Length = Q("0.04 in")
body16 = doc.addObject("PartDesign::Body", "Body015")

# Sketch on XZ plane
sketch18 = body16.newObject("Sketcher::SketchObject", "Sketch017")
sketch18.AttachmentSupport = (doc.getObject("XZ_Plane015"), [""])
sketch18.MapMode = "FlatFace"
sketch18.AttachmentOffset = App.Placement(App.Vector(0, 0, 0.05 * 25.4), App.Rotation())
sketch18.addGeometry(Part.LineSegment(App.Vector(-4.2, -2.2, 0), App.Vector(-4.2, -3.2, 0)), False)
sketch18.addGeometry(Part.LineSegment(App.Vector(-4.2, -3.2, 0), App.Vector(-1.3, -3.2, 0)), False)
sketch18.addGeometry(Part.LineSegment(App.Vector(-1.3, -3.2, 0), App.Vector(-1.3, -2.2, 0)), False)
sketch18.addGeometry(Part.LineSegment(App.Vector(-1.3, -2.2, 0), App.Vector(-4.2, -2.2, 0)), False)
sketch18.addConstraint(Sketcher.Constraint("Coincident", 0, 2, 1, 1))
sketch18.addConstraint(Sketcher.Constraint("Coincident", 1, 2, 2, 1))
sketch18.addConstraint(Sketcher.Constraint("Coincident", 2, 2, 3, 1))
sketch18.addConstraint(Sketcher.Constraint("Coincident", 3, 2, 0, 1))
sketch18.addConstraint(Sketcher.Constraint("Vertical", 0))
sketch18.addConstraint(Sketcher.Constraint("Horizontal", 1))
sketch18.addConstraint(Sketcher.Constraint("Vertical", 2))
sketch18.addConstraint(Sketcher.Constraint("Horizontal", 3))
sketch18.addConstraint(Sketcher.Constraint("DistanceY", 0, 2, 0, 1, 1.07936))
sketch18.addConstraint(Sketcher.Constraint("DistanceX", 1, 1, 1, 2, 2.878293))
sketch18.addConstraint(Sketcher.Constraint("DistanceX", 0, 2, -1, 1, 4.151562))
sketch18.addConstraint(Sketcher.Constraint("DistanceY", 0, 2, -1, 1, 3.24497))
pad15 = body16.newObject("PartDesign::Pad", "Pad014")
pad15.Profile = sketch18
pad15.Length = Q("0.04 in")
body17 = doc.addObject("PartDesign::Body", "Body016")

# Sketch on XZ plane
sketch19 = body17.newObject("Sketcher::SketchObject", "Sketch018")
sketch19.AttachmentSupport = (doc.getObject("XZ_Plane016"), [""])
sketch19.MapMode = "FlatFace"
sketch19.AttachmentOffset = App.Placement(App.Vector(0, 0, 0.05 * 25.4), App.Rotation())
sketch19.addGeometry(Part.LineSegment(App.Vector(-4.1, -4.4, 0), App.Vector(-4.1, -5.4, 0)), False)
sketch19.addGeometry(Part.LineSegment(App.Vector(-4.1, -5.4, 0), App.Vector(-1.2, -5.4, 0)), False)
sketch19.addGeometry(Part.LineSegment(App.Vector(-1.2, -5.4, 0), App.Vector(-1.2, -4.4, 0)), False)
sketch19.addGeometry(Part.LineSegment(App.Vector(-1.2, -4.4, 0), App.Vector(-4.1, -4.4, 0)), False)
sketch19.addConstraint(Sketcher.Constraint("Coincident", 0, 2, 1, 1))
sketch19.addConstraint(Sketcher.Constraint("Coincident", 1, 2, 2, 1))
sketch19.addConstraint(Sketcher.Constraint("Coincident", 2, 2, 3, 1))
sketch19.addConstraint(Sketcher.Constraint("Coincident", 3, 2, 0, 1))
sketch19.addConstraint(Sketcher.Constraint("Vertical", 0))
sketch19.addConstraint(Sketcher.Constraint("Horizontal", 1))
sketch19.addConstraint(Sketcher.Constraint("Vertical", 2))
sketch19.addConstraint(Sketcher.Constraint("Horizontal", 3))
sketch19.addConstraint(Sketcher.Constraint("DistanceY", 0, 2, 0, 1, 1.07936))
sketch19.addConstraint(Sketcher.Constraint("DistanceX", 1, 1, 1, 2, 2.878293))
sketch19.addConstraint(Sketcher.Constraint("DistanceX", 0, 2, -1, 1, 4.12482))
sketch19.addConstraint(Sketcher.Constraint("DistanceY", 0, 2, -1, 1, 5.437757))
pad16 = body17.newObject("PartDesign::Pad", "Pad015")
pad16.Profile = sketch19
pad16.Length = Q("0.04 in")
body18 = doc.addObject("PartDesign::Body", "Body017")

# Sketch on XZ plane
sketch20 = body18.newObject("Sketcher::SketchObject", "Sketch019")
sketch20.AttachmentSupport = (doc.getObject("XZ_Plane017"), [""])
sketch20.MapMode = "FlatFace"
sketch20.AttachmentOffset = App.Placement(App.Vector(0, 0, 0.05 * 25.4), App.Rotation())
sketch20.addGeometry(Part.LineSegment(App.Vector(2.8, -2.2, 0), App.Vector(2.8, -3.3, 0)), False)
sketch20.addGeometry(Part.LineSegment(App.Vector(2.8, -3.3, 0), App.Vector(5.7, -3.3, 0)), False)
sketch20.addGeometry(Part.LineSegment(App.Vector(5.7, -3.3, 0), App.Vector(5.7, -2.2, 0)), False)
sketch20.addGeometry(Part.LineSegment(App.Vector(5.7, -2.2, 0), App.Vector(2.8, -2.2, 0)), False)
sketch20.addConstraint(Sketcher.Constraint("Coincident", 0, 2, 1, 1))
sketch20.addConstraint(Sketcher.Constraint("Coincident", 1, 2, 2, 1))
sketch20.addConstraint(Sketcher.Constraint("Coincident", 2, 2, 3, 1))
sketch20.addConstraint(Sketcher.Constraint("Coincident", 3, 2, 0, 1))
sketch20.addConstraint(Sketcher.Constraint("Vertical", 0))
sketch20.addConstraint(Sketcher.Constraint("Horizontal", 1))
sketch20.addConstraint(Sketcher.Constraint("Vertical", 2))
sketch20.addConstraint(Sketcher.Constraint("Horizontal", 3))
sketch20.addConstraint(Sketcher.Constraint("DistanceY", 0, 2, 0, 1, 1.07936))
sketch20.addConstraint(Sketcher.Constraint("DistanceX", 1, 1, 1, 2, 2.878293))
sketch20.addConstraint(Sketcher.Constraint("DistanceX", -1, 1, 0, 2, 2.801179))
sketch20.addConstraint(Sketcher.Constraint("DistanceY", 0, 2, -1, 1, 3.298453))
pad17 = body18.newObject("PartDesign::Pad", "Pad016")
pad17.Profile = sketch20
pad17.Length = Q("0.04 in")
body19 = doc.addObject("PartDesign::Body", "Body018")

# Sketch on XZ plane
sketch21 = body19.newObject("Sketcher::SketchObject", "Sketch020")
sketch21.AttachmentSupport = (doc.getObject("XZ_Plane018"), [""])
sketch21.MapMode = "FlatFace"
sketch21.AttachmentOffset = App.Placement(App.Vector(0, 0, 0.05 * 25.4), App.Rotation())
sketch21.addGeometry(Part.LineSegment(App.Vector(2.8, -4.5, 0), App.Vector(2.8, -5.6, 0)), False)
sketch21.addGeometry(Part.LineSegment(App.Vector(2.8, -5.6, 0), App.Vector(5.7, -5.6, 0)), False)
sketch21.addGeometry(Part.LineSegment(App.Vector(5.7, -5.6, 0), App.Vector(5.7, -4.5, 0)), False)
sketch21.addGeometry(Part.LineSegment(App.Vector(5.7, -4.5, 0), App.Vector(2.8, -4.5, 0)), False)
sketch21.addConstraint(Sketcher.Constraint("Coincident", 0, 2, 1, 1))
sketch21.addConstraint(Sketcher.Constraint("Coincident", 1, 2, 2, 1))
sketch21.addConstraint(Sketcher.Constraint("Coincident", 2, 2, 3, 1))
sketch21.addConstraint(Sketcher.Constraint("Coincident", 3, 2, 0, 1))
sketch21.addConstraint(Sketcher.Constraint("Vertical", 0))
sketch21.addConstraint(Sketcher.Constraint("Horizontal", 1))
sketch21.addConstraint(Sketcher.Constraint("Vertical", 2))
sketch21.addConstraint(Sketcher.Constraint("Horizontal", 3))
sketch21.addConstraint(Sketcher.Constraint("DistanceY", 0, 2, 0, 1, 1.07936))
sketch21.addConstraint(Sketcher.Constraint("DistanceX", 1, 1, 1, 2, 2.878293))
sketch21.addConstraint(Sketcher.Constraint("DistanceX", -1, 1, 0, 2, 2.827921))
sketch21.addConstraint(Sketcher.Constraint("DistanceY", 0, 2, -1, 1, 5.624947))
pad18 = body19.newObject("PartDesign::Pad", "Pad017")
pad18.Profile = sketch21
pad18.Length = Q("0.04 in")
body20 = doc.addObject("PartDesign::Body", "Body019")

# Sketch on XZ plane
sketch22 = body20.newObject("Sketcher::SketchObject", "Sketch021")
sketch22.AttachmentSupport = (doc.getObject("XZ_Plane019"), [""])
sketch22.MapMode = "FlatFace"
sketch22.AttachmentOffset = App.Placement(App.Vector(0, 0, 0.05 * 25.4), App.Rotation())
sketch22.addGeometry(Part.LineSegment(App.Vector(9.8, -2.3, 0), App.Vector(9.8, -3.4, 0)), False)
sketch22.addGeometry(Part.LineSegment(App.Vector(9.8, -3.4, 0), App.Vector(12.7, -3.4, 0)), False)
sketch22.addGeometry(Part.LineSegment(App.Vector(12.7, -3.4, 0), App.Vector(12.7, -2.3, 0)), False)
sketch22.addGeometry(Part.LineSegment(App.Vector(12.7, -2.3, 0), App.Vector(9.8, -2.3, 0)), False)
sketch22.addConstraint(Sketcher.Constraint("Coincident", 0, 2, 1, 1))
sketch22.addConstraint(Sketcher.Constraint("Coincident", 1, 2, 2, 1))
sketch22.addConstraint(Sketcher.Constraint("Coincident", 2, 2, 3, 1))
sketch22.addConstraint(Sketcher.Constraint("Coincident", 3, 2, 0, 1))
sketch22.addConstraint(Sketcher.Constraint("Vertical", 0))
sketch22.addConstraint(Sketcher.Constraint("Horizontal", 1))
sketch22.addConstraint(Sketcher.Constraint("Vertical", 2))
sketch22.addConstraint(Sketcher.Constraint("Horizontal", 3))
sketch22.addConstraint(Sketcher.Constraint("DistanceY", 0, 2, 0, 1, 1.07936))
sketch22.addConstraint(Sketcher.Constraint("DistanceX", 1, 1, 1, 2, 2.878293))
sketch22.addConstraint(Sketcher.Constraint("DistanceX", -1, 1, 0, 2, 9.807402))
sketch22.addConstraint(Sketcher.Constraint("DistanceY", 0, 2, -1, 1, 3.378677))
pad19 = body20.newObject("PartDesign::Pad", "Pad018")
pad19.Profile = sketch22
pad19.Length = Q("0.04 in")
body21 = doc.addObject("PartDesign::Body", "Body020")

# Sketch on XZ plane
sketch23 = body21.newObject("Sketcher::SketchObject", "Sketch022")
sketch23.AttachmentSupport = (doc.getObject("XZ_Plane020"), [""])
sketch23.MapMode = "FlatFace"
sketch23.AttachmentOffset = App.Placement(App.Vector(0, 0, 0.05 * 25.4), App.Rotation())
sketch23.addGeometry(Part.LineSegment(App.Vector(9.8, -4.6, 0), App.Vector(9.8, -5.7, 0)), False)
sketch23.addGeometry(Part.LineSegment(App.Vector(9.8, -5.7, 0), App.Vector(12.7, -5.7, 0)), False)
sketch23.addGeometry(Part.LineSegment(App.Vector(12.7, -5.7, 0), App.Vector(12.7, -4.6, 0)), False)
sketch23.addGeometry(Part.LineSegment(App.Vector(12.7, -4.6, 0), App.Vector(9.8, -4.6, 0)), False)
sketch23.addConstraint(Sketcher.Constraint("Coincident", 0, 2, 1, 1))
sketch23.addConstraint(Sketcher.Constraint("Coincident", 1, 2, 2, 1))
sketch23.addConstraint(Sketcher.Constraint("Coincident", 2, 2, 3, 1))
sketch23.addConstraint(Sketcher.Constraint("Coincident", 3, 2, 0, 1))
sketch23.addConstraint(Sketcher.Constraint("Vertical", 0))
sketch23.addConstraint(Sketcher.Constraint("Horizontal", 1))
sketch23.addConstraint(Sketcher.Constraint("Vertical", 2))
sketch23.addConstraint(Sketcher.Constraint("Horizontal", 3))
sketch23.addConstraint(Sketcher.Constraint("DistanceY", 0, 2, 0, 1, 1.07936))
sketch23.addConstraint(Sketcher.Constraint("DistanceX", 1, 1, 1, 2, 2.878293))
sketch23.addConstraint(Sketcher.Constraint("DistanceY", 0, 2, -1, 1, 5.678429))
sketch23.addConstraint(Sketcher.Constraint("DistanceX", -1, 1, 0, 2, 9.807402))
pad20 = body21.newObject("PartDesign::Pad", "Pad019")
pad20.Profile = sketch23
pad20.Length = Q("0.04 in")

doc.recompute()
